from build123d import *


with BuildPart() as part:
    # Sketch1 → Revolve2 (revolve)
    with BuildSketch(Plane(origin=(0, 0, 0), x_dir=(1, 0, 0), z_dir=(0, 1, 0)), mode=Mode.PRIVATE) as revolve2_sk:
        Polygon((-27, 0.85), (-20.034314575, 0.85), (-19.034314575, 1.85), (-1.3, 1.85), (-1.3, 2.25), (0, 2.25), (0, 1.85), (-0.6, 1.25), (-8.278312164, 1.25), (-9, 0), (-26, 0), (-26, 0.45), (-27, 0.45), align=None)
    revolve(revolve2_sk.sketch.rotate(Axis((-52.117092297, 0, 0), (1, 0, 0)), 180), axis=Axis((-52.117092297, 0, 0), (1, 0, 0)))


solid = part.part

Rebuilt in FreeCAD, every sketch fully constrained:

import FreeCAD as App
import Part
import Sketcher
from FreeCAD import Vector
Q = App.Units.Quantity


def add_polygon(sketch, points):
    """Adds a closed chain of lines whose ends are joined by coincident constraints."""
    first, n = sketch.GeometryCount, len(points)
    for a, b in zip(points, points[1:] + points[:1]):
        sketch.addGeometry(Part.LineSegment(App.Vector(*a, 0), App.Vector(*b, 0)), False)
    for i in range(n):
        sketch.addConstraint(Sketcher.Constraint("Coincident", first + i, 2, first + (i + 1) % n, 1))

doc = App.newDocument("Part")
body = doc.addObject("PartDesign::Body", "Body")

# Sketch on XZ plane
sketch1 = body.newObject("Sketcher::SketchObject", "Sketch")
sketch1.AttachmentSupport = (doc.getObject("XZ_Plane"), [""])
sketch1.MapMode = "FlatFace"
add_polygon(sketch1, [(-20.03, -0.85), (-27, -0.85), (-27, -0.45), (-26, -0.45), (-26, 0), (-9, 0), (-8.28, -1.25), (-0.6, -1.25), (0, -1.85), (0, -2.25), (-1.3, -2.25), (-1.3, -1.85), (-19.03, -1.85)])  # lines 0-12
sketch1.addConstraint(Sketcher.Constraint("Horizontal", 0))
sketch1.addConstraint(Sketcher.Constraint("Vertical", 1))
sketch1.addConstraint(Sketcher.Constraint("Horizontal", 2))
sketch1.addConstraint(Sketcher.Constraint("Vertical", 3))
sketch1.addConstraint(Sketcher.Constraint("Horizontal", 4))
sketch1.addConstraint(Sketcher.Constraint("Horizontal", 6))
sketch1.addConstraint(Sketcher.Constraint("Vertical", 8))
sketch1.addConstraint(Sketcher.Constraint("Horizontal", 9))
sketch1.addConstraint(Sketcher.Constraint("Vertical", 10))
sketch1.addConstraint(Sketcher.Constraint("Horizontal", 11))
sketch1.addConstraint(Sketcher.Constraint("PointOnObject", 3, 2, -1))
sketch1.addConstraint(Sketcher.Constraint("PointOnObject", 7, 2, -2))
sketch1.addConstraint(Sketcher.Constraint("Parallel", 7, 12))
sketch1.addConstraint(Sketcher.Constraint("Horizontal", 7, 2, 10, 2))
sketch1.addConstraint(Sketcher.Constraint("Equal", 1, 8))
sketch1.addConstraint(Sketcher.Constraint("DistanceX", 2, 1, 2, 2, 1.0))
sketch1.addConstraint(Sketcher.Constraint("DistanceX", 4, 1, 4, 2, 17.0))
sketch1.addConstraint(Sketcher.Constraint("Angle", 5, Q("-60 deg")))
sketch1.addConstraint(Sketcher.Constraint("Angle", 7, Q("-45 deg")))
sketch1.addConstraint(Sketcher.Constraint("DistanceX", 9, 2, 9, 1, 1.3))
sketch1.addConstraint(Sketcher.Constraint("DistanceY", 1, 1, 1, 2, 0.4))
sketch1.addConstraint(Sketcher.Constraint("DistanceX", 0, 2, -1, 1, 27.0))
sketch1.addConstraint(Sketcher.Constraint("DistanceY", 8, 2, 6, 2, 1.0))
sketch1.addConstraint(Sketcher.Constraint("DistanceY", 11, 2, 0, 2, 1.0))
sketch1.addConstraint(Sketcher.Constraint("DistanceY", 3, 1, 3, 2, 0.45))
sketch1.addConstraint(Sketcher.Constraint("DistanceX", 0, 2, 0, 1, 6.965685))
revolution = body.newObject("PartDesign::Revolution", "Revolution")
revolution.Profile = sketch1
revolution.ReferenceAxis = (sketch1, ["H_Axis"])
revolution.Angle = 360

doc.recompute()
